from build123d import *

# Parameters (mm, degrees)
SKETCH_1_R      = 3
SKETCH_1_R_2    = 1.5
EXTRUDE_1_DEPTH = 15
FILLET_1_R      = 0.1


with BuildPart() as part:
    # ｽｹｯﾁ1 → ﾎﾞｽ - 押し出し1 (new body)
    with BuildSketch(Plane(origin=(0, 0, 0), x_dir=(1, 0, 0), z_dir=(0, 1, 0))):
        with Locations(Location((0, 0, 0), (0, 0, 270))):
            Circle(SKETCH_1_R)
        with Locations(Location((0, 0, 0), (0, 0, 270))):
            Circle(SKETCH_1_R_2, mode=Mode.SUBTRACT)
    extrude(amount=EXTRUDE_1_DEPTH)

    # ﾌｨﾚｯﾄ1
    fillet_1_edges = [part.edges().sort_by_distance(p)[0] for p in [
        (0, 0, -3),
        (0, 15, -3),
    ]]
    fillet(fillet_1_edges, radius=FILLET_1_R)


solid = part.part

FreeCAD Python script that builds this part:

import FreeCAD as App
import Part
import Sketcher


def edges_at(feature, points):
    """Names of the edges that pass closest to the given points."""
    edges = feature.Shape.Edges
    near = lambda p: min(range(len(edges)), key=lambda i: edges[i].distToShape(Part.Vertex(*p))[0])
    return sorted({f"Edge{near(p) + 1}" for p in points})

doc = App.newDocument("Part")
params = doc.addObject("Spreadsheet::Sheet", "Params")
for row, (alias, value) in enumerate([
    ("sketch1_diameter", "6 mm"),
    ("sketch1_diameter2", "3 mm"),
    ("pad1_length", "15 mm"),
    ("fillet_radius", "0.1 mm"),
], start=1):
    params.set(f"A{row}", alias)
    params.set(f"B{row}", "=" + value)
    params.setAlias(f"B{row}", alias)

body = doc.addObject("PartDesign::Body", "Body")

# Sketch on XZ plane
sketch1 = body.newObject("Sketcher::SketchObject", "Sketch")
sketch1.AttachmentSupport = (doc.getObject("XZ_Plane"), [""])
sketch1.MapMode = "FlatFace"
sketch1.addGeometry([
    Part.Circle(App.Vector(0, 0, 0), App.Vector(0, 0, 1), 3),
    Part.Circle(App.Vector(0, 0, 0), App.Vector(0, 0, 1), 1.5),
], False)
sketch1.addConstraint([
    Sketcher.Constraint("Coincident", 0, 3, -1, 1),
    Sketcher.Constraint("Coincident", 1, 3, -1, 1),
    Sketcher.Constraint("Diameter", 0, 6.0),
    Sketcher.Constraint("Diameter", 1, 3.0),
])
sketch1.setExpression("Constraints[2]", "Params.sketch1_diameter")
sketch1.setExpression("Constraints[3]", "Params.sketch1_diameter2")
pad1 = body.newObject("PartDesign::Pad", "Pad")
pad1.Profile = sketch1
pad1.setExpression("Length", "Params.pad1_length")
pad1.Reversed = True
doc.recompute()

fillet = body.newObject("PartDesign::Fillet", "Fillet")
fillet.Base = (pad1, edges_at(pad1, [(0, 0, -3), (0, 15, -3)]))
fillet.setExpression("Radius", "Params.fillet_radius")

doc.recompute()
